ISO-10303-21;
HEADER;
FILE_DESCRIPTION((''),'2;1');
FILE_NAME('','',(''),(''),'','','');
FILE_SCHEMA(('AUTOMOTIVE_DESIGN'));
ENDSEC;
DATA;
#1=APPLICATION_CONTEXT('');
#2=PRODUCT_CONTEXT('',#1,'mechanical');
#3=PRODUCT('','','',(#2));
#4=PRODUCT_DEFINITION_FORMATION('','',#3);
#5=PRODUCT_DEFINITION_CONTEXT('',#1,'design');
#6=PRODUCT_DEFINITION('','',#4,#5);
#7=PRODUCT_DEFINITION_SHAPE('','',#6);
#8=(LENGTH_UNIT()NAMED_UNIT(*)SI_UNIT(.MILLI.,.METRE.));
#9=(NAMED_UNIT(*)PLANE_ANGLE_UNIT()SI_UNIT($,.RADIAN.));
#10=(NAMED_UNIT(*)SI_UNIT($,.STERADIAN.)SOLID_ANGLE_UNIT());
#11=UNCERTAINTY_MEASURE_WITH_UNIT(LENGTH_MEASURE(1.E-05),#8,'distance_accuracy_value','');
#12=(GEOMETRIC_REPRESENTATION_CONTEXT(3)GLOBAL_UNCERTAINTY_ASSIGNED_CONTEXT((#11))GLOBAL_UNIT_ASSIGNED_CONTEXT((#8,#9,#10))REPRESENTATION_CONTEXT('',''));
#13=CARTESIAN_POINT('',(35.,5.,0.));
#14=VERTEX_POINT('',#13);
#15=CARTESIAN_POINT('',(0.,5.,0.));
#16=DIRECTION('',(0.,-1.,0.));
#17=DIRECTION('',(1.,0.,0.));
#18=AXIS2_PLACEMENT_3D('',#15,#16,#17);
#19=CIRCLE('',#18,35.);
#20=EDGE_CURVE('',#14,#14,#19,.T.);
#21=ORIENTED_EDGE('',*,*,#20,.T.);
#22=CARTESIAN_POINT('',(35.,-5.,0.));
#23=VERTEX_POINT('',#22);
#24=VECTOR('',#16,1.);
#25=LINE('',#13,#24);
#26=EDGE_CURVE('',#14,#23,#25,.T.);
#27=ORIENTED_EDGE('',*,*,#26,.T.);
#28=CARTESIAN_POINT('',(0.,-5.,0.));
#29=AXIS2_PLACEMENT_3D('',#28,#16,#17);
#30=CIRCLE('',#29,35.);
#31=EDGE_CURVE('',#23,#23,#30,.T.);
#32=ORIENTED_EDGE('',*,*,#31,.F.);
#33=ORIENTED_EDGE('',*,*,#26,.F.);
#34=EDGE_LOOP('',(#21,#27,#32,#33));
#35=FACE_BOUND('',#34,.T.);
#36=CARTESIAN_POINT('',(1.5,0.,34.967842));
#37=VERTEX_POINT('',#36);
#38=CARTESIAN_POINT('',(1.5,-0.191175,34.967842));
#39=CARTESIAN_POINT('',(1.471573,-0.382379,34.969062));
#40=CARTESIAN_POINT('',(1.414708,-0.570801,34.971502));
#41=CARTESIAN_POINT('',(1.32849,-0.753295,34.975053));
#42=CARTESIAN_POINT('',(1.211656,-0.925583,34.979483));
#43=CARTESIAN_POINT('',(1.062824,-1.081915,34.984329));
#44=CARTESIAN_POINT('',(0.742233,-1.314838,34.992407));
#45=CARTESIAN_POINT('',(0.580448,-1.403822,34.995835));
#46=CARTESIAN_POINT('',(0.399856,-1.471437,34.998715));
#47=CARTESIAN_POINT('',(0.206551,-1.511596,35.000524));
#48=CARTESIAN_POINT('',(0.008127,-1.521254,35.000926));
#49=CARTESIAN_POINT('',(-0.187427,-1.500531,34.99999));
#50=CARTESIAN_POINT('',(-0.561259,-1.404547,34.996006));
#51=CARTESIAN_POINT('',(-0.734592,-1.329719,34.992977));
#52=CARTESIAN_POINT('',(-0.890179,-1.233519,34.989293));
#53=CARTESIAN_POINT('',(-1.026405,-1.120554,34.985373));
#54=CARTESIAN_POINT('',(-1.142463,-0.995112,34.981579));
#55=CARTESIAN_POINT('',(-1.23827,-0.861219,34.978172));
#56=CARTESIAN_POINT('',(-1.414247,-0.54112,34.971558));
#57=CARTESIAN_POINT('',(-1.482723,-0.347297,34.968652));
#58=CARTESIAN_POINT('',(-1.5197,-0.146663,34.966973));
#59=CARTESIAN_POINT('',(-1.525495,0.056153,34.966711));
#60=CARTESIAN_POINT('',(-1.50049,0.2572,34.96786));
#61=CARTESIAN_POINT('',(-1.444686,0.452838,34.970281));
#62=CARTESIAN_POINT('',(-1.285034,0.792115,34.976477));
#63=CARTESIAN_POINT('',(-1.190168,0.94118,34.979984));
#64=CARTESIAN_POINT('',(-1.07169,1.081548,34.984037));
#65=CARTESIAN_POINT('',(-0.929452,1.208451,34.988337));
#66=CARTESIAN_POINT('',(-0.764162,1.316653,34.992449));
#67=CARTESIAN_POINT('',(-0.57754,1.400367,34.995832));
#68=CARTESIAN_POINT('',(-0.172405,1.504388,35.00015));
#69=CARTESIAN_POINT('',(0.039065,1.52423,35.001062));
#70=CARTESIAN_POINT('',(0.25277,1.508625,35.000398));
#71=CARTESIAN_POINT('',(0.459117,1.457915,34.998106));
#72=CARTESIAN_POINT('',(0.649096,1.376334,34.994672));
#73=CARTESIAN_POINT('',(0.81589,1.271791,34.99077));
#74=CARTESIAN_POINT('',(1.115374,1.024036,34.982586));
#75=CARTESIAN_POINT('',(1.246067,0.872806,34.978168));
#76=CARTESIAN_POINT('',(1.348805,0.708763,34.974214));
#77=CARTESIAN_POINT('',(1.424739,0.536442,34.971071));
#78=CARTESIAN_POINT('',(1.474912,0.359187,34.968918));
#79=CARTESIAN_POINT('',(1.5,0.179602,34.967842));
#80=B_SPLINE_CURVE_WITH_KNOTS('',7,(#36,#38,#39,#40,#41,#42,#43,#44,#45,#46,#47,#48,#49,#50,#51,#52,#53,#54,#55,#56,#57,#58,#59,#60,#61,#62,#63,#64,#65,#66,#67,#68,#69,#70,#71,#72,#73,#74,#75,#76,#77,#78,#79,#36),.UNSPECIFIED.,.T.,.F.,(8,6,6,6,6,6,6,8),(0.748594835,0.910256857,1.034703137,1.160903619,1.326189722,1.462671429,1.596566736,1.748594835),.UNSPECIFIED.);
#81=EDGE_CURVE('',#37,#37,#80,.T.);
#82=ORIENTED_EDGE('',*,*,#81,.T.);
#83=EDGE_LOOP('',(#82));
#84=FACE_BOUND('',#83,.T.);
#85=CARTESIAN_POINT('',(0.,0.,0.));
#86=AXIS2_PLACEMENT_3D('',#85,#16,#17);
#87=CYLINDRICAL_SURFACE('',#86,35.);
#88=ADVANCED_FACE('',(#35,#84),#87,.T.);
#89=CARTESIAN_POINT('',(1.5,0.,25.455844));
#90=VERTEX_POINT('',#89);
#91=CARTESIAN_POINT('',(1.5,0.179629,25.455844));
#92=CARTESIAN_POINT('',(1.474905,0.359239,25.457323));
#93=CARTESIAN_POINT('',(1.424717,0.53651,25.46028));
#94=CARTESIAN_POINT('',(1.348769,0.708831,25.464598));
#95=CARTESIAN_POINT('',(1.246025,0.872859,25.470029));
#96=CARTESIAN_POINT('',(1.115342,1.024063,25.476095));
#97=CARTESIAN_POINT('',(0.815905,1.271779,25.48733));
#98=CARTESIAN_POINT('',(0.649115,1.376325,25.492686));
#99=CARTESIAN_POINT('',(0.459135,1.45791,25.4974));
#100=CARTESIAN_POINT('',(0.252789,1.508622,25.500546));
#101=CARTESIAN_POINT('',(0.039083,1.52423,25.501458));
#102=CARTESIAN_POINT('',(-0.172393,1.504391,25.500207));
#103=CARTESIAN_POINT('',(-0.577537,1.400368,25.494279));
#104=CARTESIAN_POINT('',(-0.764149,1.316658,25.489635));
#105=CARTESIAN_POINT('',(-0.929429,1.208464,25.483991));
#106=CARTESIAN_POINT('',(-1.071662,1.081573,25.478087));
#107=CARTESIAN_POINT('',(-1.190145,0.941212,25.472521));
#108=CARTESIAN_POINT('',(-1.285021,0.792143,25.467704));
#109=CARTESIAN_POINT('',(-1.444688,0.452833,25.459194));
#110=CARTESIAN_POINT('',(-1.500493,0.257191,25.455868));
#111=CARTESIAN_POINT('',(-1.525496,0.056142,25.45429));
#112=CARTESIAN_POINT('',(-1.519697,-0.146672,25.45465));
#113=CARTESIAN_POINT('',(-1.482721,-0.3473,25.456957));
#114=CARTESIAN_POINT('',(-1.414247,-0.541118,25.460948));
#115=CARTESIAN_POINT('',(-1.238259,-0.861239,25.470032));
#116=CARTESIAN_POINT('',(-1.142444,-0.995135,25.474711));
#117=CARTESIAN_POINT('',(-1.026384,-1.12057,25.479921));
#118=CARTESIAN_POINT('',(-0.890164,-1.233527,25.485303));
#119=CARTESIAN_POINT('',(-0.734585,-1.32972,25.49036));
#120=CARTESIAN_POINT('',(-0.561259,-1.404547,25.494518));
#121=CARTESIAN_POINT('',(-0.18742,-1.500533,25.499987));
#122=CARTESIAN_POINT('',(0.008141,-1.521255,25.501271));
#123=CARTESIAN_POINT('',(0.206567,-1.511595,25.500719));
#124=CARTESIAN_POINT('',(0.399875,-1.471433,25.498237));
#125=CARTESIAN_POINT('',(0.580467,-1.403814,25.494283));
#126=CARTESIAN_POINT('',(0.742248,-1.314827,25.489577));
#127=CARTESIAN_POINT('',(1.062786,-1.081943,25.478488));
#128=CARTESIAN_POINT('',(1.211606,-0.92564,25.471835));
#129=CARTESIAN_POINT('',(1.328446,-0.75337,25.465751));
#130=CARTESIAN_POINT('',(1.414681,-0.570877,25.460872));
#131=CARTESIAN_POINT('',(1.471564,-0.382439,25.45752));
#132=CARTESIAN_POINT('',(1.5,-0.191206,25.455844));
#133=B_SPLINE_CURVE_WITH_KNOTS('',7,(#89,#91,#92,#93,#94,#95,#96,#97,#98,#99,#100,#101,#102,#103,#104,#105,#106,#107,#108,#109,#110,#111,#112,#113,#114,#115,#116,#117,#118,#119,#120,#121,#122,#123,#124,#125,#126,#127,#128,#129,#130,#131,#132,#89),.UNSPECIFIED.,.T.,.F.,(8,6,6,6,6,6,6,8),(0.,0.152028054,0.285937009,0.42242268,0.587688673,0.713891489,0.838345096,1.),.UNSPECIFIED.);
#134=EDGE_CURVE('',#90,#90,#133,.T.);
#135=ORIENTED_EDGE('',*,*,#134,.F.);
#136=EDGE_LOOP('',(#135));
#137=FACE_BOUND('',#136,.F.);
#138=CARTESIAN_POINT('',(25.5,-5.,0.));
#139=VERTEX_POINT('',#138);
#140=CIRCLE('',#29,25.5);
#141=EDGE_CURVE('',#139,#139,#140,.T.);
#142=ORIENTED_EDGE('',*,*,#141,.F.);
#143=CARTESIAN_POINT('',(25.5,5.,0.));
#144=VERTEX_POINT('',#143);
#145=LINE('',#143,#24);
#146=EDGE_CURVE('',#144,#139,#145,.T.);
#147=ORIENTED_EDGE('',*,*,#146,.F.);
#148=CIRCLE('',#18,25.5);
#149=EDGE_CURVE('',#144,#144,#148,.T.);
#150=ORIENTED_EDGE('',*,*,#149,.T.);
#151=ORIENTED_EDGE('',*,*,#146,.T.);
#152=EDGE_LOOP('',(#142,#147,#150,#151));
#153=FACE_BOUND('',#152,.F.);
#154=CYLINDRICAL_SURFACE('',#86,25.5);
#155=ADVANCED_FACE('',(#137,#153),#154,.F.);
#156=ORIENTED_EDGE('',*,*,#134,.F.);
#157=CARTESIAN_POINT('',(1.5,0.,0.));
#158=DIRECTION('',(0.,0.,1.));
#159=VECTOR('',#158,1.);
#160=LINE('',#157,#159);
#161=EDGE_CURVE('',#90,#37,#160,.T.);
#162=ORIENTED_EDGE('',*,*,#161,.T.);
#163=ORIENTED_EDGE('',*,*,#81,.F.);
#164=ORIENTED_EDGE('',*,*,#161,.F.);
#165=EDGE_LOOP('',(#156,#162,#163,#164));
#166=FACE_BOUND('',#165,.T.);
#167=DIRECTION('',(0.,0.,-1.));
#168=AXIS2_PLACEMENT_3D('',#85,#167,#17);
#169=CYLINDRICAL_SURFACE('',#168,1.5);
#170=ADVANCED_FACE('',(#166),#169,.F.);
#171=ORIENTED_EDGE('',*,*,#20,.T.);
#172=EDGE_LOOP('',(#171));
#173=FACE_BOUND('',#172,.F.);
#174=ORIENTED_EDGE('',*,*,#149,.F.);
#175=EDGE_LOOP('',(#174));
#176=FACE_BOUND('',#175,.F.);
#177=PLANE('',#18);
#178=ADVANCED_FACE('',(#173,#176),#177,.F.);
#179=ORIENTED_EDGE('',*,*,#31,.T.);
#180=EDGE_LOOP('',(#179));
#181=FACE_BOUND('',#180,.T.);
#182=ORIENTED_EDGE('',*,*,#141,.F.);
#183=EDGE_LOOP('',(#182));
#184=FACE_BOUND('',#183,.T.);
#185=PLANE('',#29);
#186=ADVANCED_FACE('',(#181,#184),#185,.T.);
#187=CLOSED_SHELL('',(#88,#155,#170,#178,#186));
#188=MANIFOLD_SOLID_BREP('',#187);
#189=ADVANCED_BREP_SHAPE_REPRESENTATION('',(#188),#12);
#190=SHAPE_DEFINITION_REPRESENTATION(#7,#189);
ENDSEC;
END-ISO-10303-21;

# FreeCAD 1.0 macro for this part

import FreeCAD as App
import Part
import Sketcher
Q = App.Units.Quantity

doc = App.newDocument("Part")
body = doc.addObject("PartDesign::Body", "Body")

# Sketch on XZ plane
sketch1 = body.newObject("Sketcher::SketchObject", "Sketch")
sketch1.AttachmentSupport = (doc.getObject("XZ_Plane"), [""])
sketch1.MapMode = "FlatFace"
sketch1.addGeometry(Part.Circle(App.Vector(0, 0, 0), App.Vector(0, 0, 1), 35), False)
sketch1.addConstraint([
    Sketcher.Constraint("Coincident", 0, 3, -1, 1),
    Sketcher.Constraint("Diameter", 0, Q("70 mm")),
])
pad1 = body.newObject("PartDesign::Pad", "Pad")
pad1.Profile = sketch1
pad1.Length = 10
pad1.Midplane = True

# Sketch on XZ plane
sketch2 = body.newObject("Sketcher::SketchObject", "Sketch001")
sketch2.AttachmentSupport = (doc.getObject("XZ_Plane"), [""])
sketch2.MapMode = "FlatFace"
sketch2.addGeometry(Part.Circle(App.Vector(0, 0, 0), App.Vector(0, 0, 1), 25.5), False)
sketch2.addConstraint([
    Sketcher.Constraint("Coincident", 0, 3, -1, 1),
    Sketcher.Constraint("Diameter", 0, Q("51 mm")),
])
pocket1 = body.newObject("PartDesign::Pocket", "Pocket")
pocket1.Profile = sketch2
pocket1.Length = 10
pocket1.Midplane = True

# Sketch on XY plane
sketch3 = body.newObject("Sketcher::SketchObject", "Sketch002")
sketch3.AttachmentSupport = (doc.getObject("XY_Plane"), [""])
sketch3.MapMode = "FlatFace"
sketch3.addGeometry(Part.Circle(App.Vector(0, 0, 0), App.Vector(0, 0, 1), 1.5), False)
sketch3.addConstraint([
    Sketcher.Constraint("Coincident", 0, 3, -1, 1),
    Sketcher.Constraint("Diameter", 0, Q("3 mm")),
])
pocket2 = body.newObject("PartDesign::Pocket", "Pocket001")
pocket2.Profile = sketch3
pocket2.Length = 35
pocket2.Reversed = True

doc.recompute()
